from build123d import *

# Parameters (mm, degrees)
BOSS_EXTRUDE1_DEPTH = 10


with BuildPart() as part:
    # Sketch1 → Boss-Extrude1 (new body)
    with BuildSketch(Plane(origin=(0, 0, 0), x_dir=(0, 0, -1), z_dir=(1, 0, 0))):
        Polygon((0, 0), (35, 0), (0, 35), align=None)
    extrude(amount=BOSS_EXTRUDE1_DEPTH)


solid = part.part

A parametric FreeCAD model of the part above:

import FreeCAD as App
import Part
import Sketcher
from FreeCAD import Vector
Q = App.Units.Quantity

doc = App.newDocument("Part")
body = doc.addObject("PartDesign::Body", "Body")

# Sketch on YZ plane
sketch1 = doc.addObject("Sketcher::SketchObject", "Sketch")
body.addObject(sketch1)
sketch1.AttachmentSupport = (doc.YZ_Plane, [""])
sketch1.MapMode = "FlatFace"
sketch1.addGeometry(Part.LineSegment(Vector(0, 0, 0), Vector(0, -35, 0)), False)
sketch1.addGeometry(Part.LineSegment(Vector(0, -35, 0), Vector(35, 0, 0)), False)
sketch1.addGeometry(Part.LineSegment(Vector(35, 0, 0), Vector(0, 0, 0)), False)
sketch1.addConstraint(Sketcher.Constraint("Coincident", 0, 2, 1, 1))
sketch1.addConstraint(Sketcher.Constraint("Coincident", 1, 2, 2, 1))
sketch1.addConstraint(Sketcher.Constraint("Coincident", 2, 2, 0, 1))
sketch1.addConstraint(Sketcher.Constraint("Vertical", 0))
sketch1.addConstraint(Sketcher.Constraint("Horizontal", 2))
sketch1.addConstraint(Sketcher.Constraint("Coincident", 2, 2, -1, 1))
sketch1.addConstraint(Sketcher.Constraint("Equal", 2, 0))
sketch1.addConstraint(Sketcher.Constraint("DistanceX", 2, 2, 2, 1, Q("35 mm")))
pad1 = doc.addObject("PartDesign::Pad", "Pad")
body.addObject(pad1)
pad1.Profile = sketch1
pad1.Length = 10

doc.recompute()
